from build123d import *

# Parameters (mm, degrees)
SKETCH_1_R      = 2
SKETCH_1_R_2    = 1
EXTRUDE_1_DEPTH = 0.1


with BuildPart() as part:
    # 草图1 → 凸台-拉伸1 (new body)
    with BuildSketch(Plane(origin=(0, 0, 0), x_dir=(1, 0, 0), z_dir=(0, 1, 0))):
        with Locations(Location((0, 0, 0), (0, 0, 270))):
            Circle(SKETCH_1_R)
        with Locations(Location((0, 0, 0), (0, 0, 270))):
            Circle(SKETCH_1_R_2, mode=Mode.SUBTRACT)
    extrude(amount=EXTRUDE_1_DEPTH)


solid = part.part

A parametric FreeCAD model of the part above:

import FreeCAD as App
import Part
import Sketcher

V = App.Vector
Q = App.Units.Quantity

doc = App.newDocument("Part")
body = doc.addObject("PartDesign::Body", "Body")

# Sketch on XZ plane
sketch1 = doc.addObject("Sketcher::SketchObject", "Sketch")
body.addObject(sketch1)
sketch1.AttachmentSupport = (doc.XZ_Plane, [""])
sketch1.MapMode = "FlatFace"
sketch1.addGeometry([
    Part.Circle(V(0, 0, 0), V(0, 0, 1), 2),
    Part.Circle(V(0, 0, 0), V(0, 0, 1), 1),
], False)
sketch1.addConstraint([
    Sketcher.Constraint("Coincident", 0, 3, -1, 1),
    Sketcher.Constraint("Coincident", 1, 3, -1, 1),
    Sketcher.Constraint("Diameter", 0, Q("4 mm")),
    Sketcher.Constraint("Diameter", 1, Q("2 mm")),
])
pad1 = doc.addObject("PartDesign::Pad", "Pad")
body.addObject(pad1)
pad1.Profile = sketch1
pad1.Length = 0.1
pad1.Reversed = True

doc.recompute()
